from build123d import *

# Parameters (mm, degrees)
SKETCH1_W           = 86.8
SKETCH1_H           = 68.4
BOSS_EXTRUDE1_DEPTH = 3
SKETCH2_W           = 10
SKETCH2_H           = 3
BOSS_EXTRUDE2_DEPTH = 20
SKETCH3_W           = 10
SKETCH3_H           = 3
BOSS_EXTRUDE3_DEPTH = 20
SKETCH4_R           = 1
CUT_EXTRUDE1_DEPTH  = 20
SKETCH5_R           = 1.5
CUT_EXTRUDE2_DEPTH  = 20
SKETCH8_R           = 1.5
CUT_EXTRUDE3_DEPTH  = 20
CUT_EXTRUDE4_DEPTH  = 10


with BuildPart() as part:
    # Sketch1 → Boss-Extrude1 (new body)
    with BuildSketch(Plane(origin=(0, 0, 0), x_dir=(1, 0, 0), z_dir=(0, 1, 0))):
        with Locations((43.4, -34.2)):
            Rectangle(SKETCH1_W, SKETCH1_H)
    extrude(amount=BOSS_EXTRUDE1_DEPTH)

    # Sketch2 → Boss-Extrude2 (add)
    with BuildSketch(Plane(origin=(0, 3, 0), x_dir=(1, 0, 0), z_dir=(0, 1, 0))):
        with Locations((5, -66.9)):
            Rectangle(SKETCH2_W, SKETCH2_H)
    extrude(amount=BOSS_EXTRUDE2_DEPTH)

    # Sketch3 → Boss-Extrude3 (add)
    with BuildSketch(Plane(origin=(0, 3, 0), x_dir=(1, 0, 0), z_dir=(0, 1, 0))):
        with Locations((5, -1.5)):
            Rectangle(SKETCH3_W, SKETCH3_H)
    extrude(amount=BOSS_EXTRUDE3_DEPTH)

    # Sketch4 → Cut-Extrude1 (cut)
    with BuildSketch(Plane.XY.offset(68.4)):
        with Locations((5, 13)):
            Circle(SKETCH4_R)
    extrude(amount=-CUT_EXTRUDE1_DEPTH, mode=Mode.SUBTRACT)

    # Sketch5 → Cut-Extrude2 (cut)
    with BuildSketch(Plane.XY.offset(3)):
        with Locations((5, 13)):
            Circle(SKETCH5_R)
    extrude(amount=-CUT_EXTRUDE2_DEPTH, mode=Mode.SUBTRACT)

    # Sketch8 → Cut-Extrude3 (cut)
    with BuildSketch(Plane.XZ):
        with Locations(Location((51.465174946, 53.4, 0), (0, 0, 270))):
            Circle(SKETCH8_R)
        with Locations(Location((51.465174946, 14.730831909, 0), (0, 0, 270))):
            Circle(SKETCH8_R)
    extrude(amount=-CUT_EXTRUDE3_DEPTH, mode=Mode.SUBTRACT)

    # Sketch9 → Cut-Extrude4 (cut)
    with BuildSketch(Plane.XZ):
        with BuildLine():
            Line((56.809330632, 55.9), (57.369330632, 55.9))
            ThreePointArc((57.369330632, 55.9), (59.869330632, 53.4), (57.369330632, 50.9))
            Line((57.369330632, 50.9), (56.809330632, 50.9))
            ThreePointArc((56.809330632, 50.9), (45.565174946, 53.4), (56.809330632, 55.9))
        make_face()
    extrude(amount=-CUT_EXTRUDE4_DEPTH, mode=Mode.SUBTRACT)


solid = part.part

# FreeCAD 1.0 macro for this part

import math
import FreeCAD as App
import Part
import Sketcher
from FreeCAD import Vector

doc = App.newDocument("Part")
params = doc.addObject("Spreadsheet::Sheet", "Params")
for row, (alias, value) in enumerate([
    ("sketch1_width", "86.8 mm"),
    ("sketch1_height", "68.4 mm"),
    ("pad1_length", "3 mm"),
    ("sketch2_width", "10 mm"),
    ("sketch2_height", "3 mm"),
    ("pad2_length", "20 mm"),
    ("sketch3_width", "10 mm"),
    ("sketch3_height", "3 mm"),
    ("pad3_length", "20 mm"),
    ("sketch4_diameter", "2 mm"),
    ("pocket1_length", "20 mm"),
    ("sketch5_diameter", "3 mm"),
    ("pocket2_length", "20 mm"),
    ("sketch6_diameter", "3 mm"),
    ("pocket3_length", "20 mm"),
    ("sketch7_radius", "5.9 mm"),
    ("sketch7_radius2", "2.5 mm"),
    ("sketch7_width", "0.56 mm"),
    ("pocket4_length", "10 mm"),
], start=1):
    params.set(f"A{row}", alias)
    params.set(f"B{row}", "=" + value)
    params.setAlias(f"B{row}", alias)

body = doc.addObject("PartDesign::Body", "Body")

# Sketch on XZ plane
sketch1 = doc.addObject("Sketcher::SketchObject", "Sketch")
body.addObject(sketch1)
sketch1.AttachmentSupport = (doc.XZ_Plane, [""])
sketch1.MapMode = "FlatFace"
sketch1.addGeometry([
    Part.LineSegment(Vector(0, 0, 0), Vector(0, 68, 0)),
    Part.LineSegment(Vector(0, 68, 0), Vector(87, 68, 0)),
    Part.LineSegment(Vector(87, 68, 0), Vector(87, 0, 0)),
    Part.LineSegment(Vector(87, 0, 0), Vector(0, 0, 0)),
], False)
sketch1.addConstraint([
    Sketcher.Constraint("Coincident", 0, 2, 1, 1),
    Sketcher.Constraint("Coincident", 1, 2, 2, 1),
    Sketcher.Constraint("Coincident", 2, 2, 3, 1),
    Sketcher.Constraint("Coincident", 3, 2, 0, 1),
    Sketcher.Constraint("Vertical", 0),
    Sketcher.Constraint("Horizontal", 1),
    Sketcher.Constraint("Vertical", 2),
    Sketcher.Constraint("Horizontal", 3),
    Sketcher.Constraint("Coincident", 3, 2, -1, 1),
    Sketcher.Constraint("DistanceX", 1, 1, 1, 2, 86.8),
    Sketcher.Constraint("DistanceY", 0, 1, 0, 2, 68.4),
])
sketch1.setExpression("Constraints[9]", "Params.sketch1_width")
sketch1.setExpression("Constraints[10]", "Params.sketch1_height")
pad1 = doc.addObject("PartDesign::Pad", "Pad")
body.addObject(pad1)
pad1.Profile = sketch1
pad1.setExpression("Length", "Params.pad1_length")
pad1.Reversed = True

# Sketch on XZ plane
sketch2 = doc.addObject("Sketcher::SketchObject", "Sketch001")
body.addObject(sketch2)
sketch2.AttachmentSupport = (doc.XZ_Plane, [""])
sketch2.MapMode = "FlatFace"
sketch2.AttachmentOffset = App.Placement(Vector(0, 0, -3), App.Rotation())
sketch2.addGeometry([
    Part.LineSegment(Vector(0, 65.4, 0), Vector(0, 68.4, 0)),
    Part.LineSegment(Vector(0, 68.4, 0), Vector(10, 68.4, 0)),
    Part.LineSegment(Vector(10, 68.4, 0), Vector(10, 65.4, 0)),
    Part.LineSegment(Vector(10, 65.4, 0), Vector(0, 65.4, 0)),
], False)
sketch2.addConstraint([
    Sketcher.Constraint("Coincident", 0, 2, 1, 1),
    Sketcher.Constraint("Coincident", 1, 2, 2, 1),
    Sketcher.Constraint("Coincident", 2, 2, 3, 1),
    Sketcher.Constraint("Coincident", 3, 2, 0, 1),
    Sketcher.Constraint("Vertical", 0),
    Sketcher.Constraint("Horizontal", 1),
    Sketcher.Constraint("Vertical", 2),
    Sketcher.Constraint("Horizontal", 3),
    Sketcher.Constraint("PointOnObject", 0, 2, -2),
    Sketcher.Constraint("DistanceX", 1, 1, 1, 2, 10.0),
    Sketcher.Constraint("DistanceY", 0, 1, 0, 2, 3.0),
    Sketcher.Constraint("DistanceY", -1, 1, 0, 2, 68.4),
])
sketch2.setExpression("Constraints[9]", "Params.sketch2_width")
sketch2.setExpression("Constraints[10]", "Params.sketch2_height")
pad2 = doc.addObject("PartDesign::Pad", "Pad001")
body.addObject(pad2)
pad2.Profile = sketch2
pad2.setExpression("Length", "Params.pad2_length")
pad2.Reversed = True

# Sketch on XZ plane
sketch3 = doc.addObject("Sketcher::SketchObject", "Sketch002")
body.addObject(sketch3)
sketch3.AttachmentSupport = (doc.XZ_Plane, [""])
sketch3.MapMode = "FlatFace"
sketch3.AttachmentOffset = App.Placement(Vector(0, 0, -3), App.Rotation())
sketch3.addGeometry([
    Part.LineSegment(Vector(0, 0, 0), Vector(0, 3, 0)),
    Part.LineSegment(Vector(0, 3, 0), Vector(10, 3, 0)),
    Part.LineSegment(Vector(10, 3, 0), Vector(10, 0, 0)),
    Part.LineSegment(Vector(10, 0, 0), Vector(0, 0, 0)),
], False)
sketch3.addConstraint([
    Sketcher.Constraint("Coincident", 0, 2, 1, 1),
    Sketcher.Constraint("Coincident", 1, 2, 2, 1),
    Sketcher.Constraint("Coincident", 2, 2, 3, 1),
    Sketcher.Constraint("Coincident", 3, 2, 0, 1),
    Sketcher.Constraint("Vertical", 0),
    Sketcher.Constraint("Horizontal", 1),
    Sketcher.Constraint("Vertical", 2),
    Sketcher.Constraint("Horizontal", 3),
    Sketcher.Constraint("Coincident", 3, 2, -1, 1),
    Sketcher.Constraint("DistanceX", 1, 1, 1, 2, 10.0),
    Sketcher.Constraint("DistanceY", 0, 1, 0, 2, 3.0),
])
sketch3.setExpression("Constraints[9]", "Params.sketch3_width")
sketch3.setExpression("Constraints[10]", "Params.sketch3_height")
pad3 = doc.addObject("PartDesign::Pad", "Pad002")
body.addObject(pad3)
pad3.Profile = sketch3
pad3.setExpression("Length", "Params.pad3_length")
pad3.Reversed = True

# Sketch on XY plane
sketch4 = doc.addObject("Sketcher::SketchObject", "Sketch003")
body.addObject(sketch4)
sketch4.AttachmentSupport = (doc.XY_Plane, [""])
sketch4.MapMode = "FlatFace"
sketch4.AttachmentOffset = App.Placement(Vector(0, 0, 68.4), App.Rotation())
sketch4.addGeometry(Part.Circle(Vector(5, 13, 0), Vector(0, 0, 1), 1), False)
sketch4.addConstraint([
    Sketcher.Constraint("Diameter", 0, 2.0),
    Sketcher.Constraint("DistanceX", -1, 1, 0, 3, 5.0),
    Sketcher.Constraint("DistanceY", -1, 1, 0, 3, 13.0),
])
sketch4.setExpression("Constraints[0]", "Params.sketch4_diameter")
pocket1 = doc.addObject("PartDesign::Pocket", "Pocket")
body.addObject(pocket1)
pocket1.Profile = sketch4
pocket1.setExpression("Length", "Params.pocket1_length")

# Sketch on XY plane
sketch5 = doc.addObject("Sketcher::SketchObject", "Sketch004")
body.addObject(sketch5)
sketch5.AttachmentSupport = (doc.XY_Plane, [""])
sketch5.MapMode = "FlatFace"
sketch5.AttachmentOffset = App.Placement(Vector(0, 0, 3), App.Rotation())
sketch5.addGeometry(Part.Circle(Vector(5, 13, 0), Vector(0, 0, 1), 1.5), False)
sketch5.addConstraint([
    Sketcher.Constraint("Diameter", 0, 3.0),
    Sketcher.Constraint("DistanceX", -1, 1, 0, 3, 5.0),
    Sketcher.Constraint("DistanceY", -1, 1, 0, 3, 13.0),
])
sketch5.setExpression("Constraints[0]", "Params.sketch5_diameter")
pocket2 = doc.addObject("PartDesign::Pocket", "Pocket001")
body.addObject(pocket2)
pocket2.Profile = sketch5
pocket2.setExpression("Length", "Params.pocket2_length")

# Sketch on XZ plane
sketch6 = doc.addObject("Sketcher::SketchObject", "Sketch005")
body.addObject(sketch6)
sketch6.AttachmentSupport = (doc.XZ_Plane, [""])
sketch6.MapMode = "FlatFace"
sketch6.addGeometry([
    Part.Circle(Vector(51.5, 53.4, 0), Vector(0, 0, 1), 1.5),
    Part.Circle(Vector(51.5, 14.7, 0), Vector(0, 0, 1), 1.5),
], False)
sketch6.addConstraint([
    Sketcher.Constraint("Equal", 0, 1),
    Sketcher.Constraint("Vertical", 0, 3, 1, 3),
    Sketcher.Constraint("Diameter", 0, 3.0),
    Sketcher.Constraint("DistanceY", -1, 1, 0, 3, 53.4),
    Sketcher.Constraint("DistanceY", -1, 1, 1, 3, 14.730832),
    Sketcher.Constraint("DistanceX", -1, 1, 0, 3, 51.465175),
])
sketch6.setExpression("Constraints[2]", "Params.sketch6_diameter")
pocket3 = doc.addObject("PartDesign::Pocket", "Pocket002")
body.addObject(pocket3)
pocket3.Profile = sketch6
pocket3.setExpression("Length", "Params.pocket3_length")

# Sketch on XZ plane
sketch7 = doc.addObject("Sketcher::SketchObject", "Sketch006")
body.addObject(sketch7)
sketch7.AttachmentSupport = (doc.XZ_Plane, [""])
sketch7.MapMode = "FlatFace"
sketch7.addGeometry([
    Part.LineSegment(Vector(57.4, 55.9, 0), Vector(56.8, 55.9, 0)),
    Part.ArcOfCircle(Part.Circle(Vector(51.5, 53.4, 0), Vector(0, 0, 1), 5.9), math.radians(25), math.radians(335)),
    Part.LineSegment(Vector(56.8, 50.9, 0), Vector(57.4, 50.9, 0)),
    Part.ArcOfCircle(Part.Circle(Vector(57.4, 53.4, 0), Vector(0, 0, 1), 2.5), math.radians(-90), math.radians(90)),
], False)
sketch7.addConstraint([
    Sketcher.Constraint("Coincident", 0, 2, 1, 1),
    Sketcher.Constraint("Coincident", 1, 2, 2, 1),
    Sketcher.Constraint("Tangent", 2, 2, 3, 1),
    Sketcher.Constraint("Tangent", 3, 2, 0, 1),
    Sketcher.Constraint("Horizontal", 0),
    Sketcher.Constraint("Horizontal", 2),
    Sketcher.Constraint("Horizontal", 1, 3, 3, 3),
    Sketcher.Constraint("Radius", 1, 5.9),
    Sketcher.Constraint("Radius", 3, 2.5),
    Sketcher.Constraint("DistanceX", 0, 2, 0, 1, 0.56),
    Sketcher.Constraint("DistanceY", -1, 1, 1, 3, 53.4),
    Sketcher.Constraint("DistanceX", -1, 1, 3, 3, 57.369331),
])
sketch7.setExpression("Constraints[7]", "Params.sketch7_radius")
sketch7.setExpression("Constraints[8]", "Params.sketch7_radius2")
sketch7.setExpression("Constraints[9]", "Params.sketch7_width")
pocket4 = doc.addObject("PartDesign::Pocket", "Pocket003")
body.addObject(pocket4)
pocket4.Profile = sketch7
pocket4.setExpression("Length", "Params.pocket4_length")

doc.recompute()
